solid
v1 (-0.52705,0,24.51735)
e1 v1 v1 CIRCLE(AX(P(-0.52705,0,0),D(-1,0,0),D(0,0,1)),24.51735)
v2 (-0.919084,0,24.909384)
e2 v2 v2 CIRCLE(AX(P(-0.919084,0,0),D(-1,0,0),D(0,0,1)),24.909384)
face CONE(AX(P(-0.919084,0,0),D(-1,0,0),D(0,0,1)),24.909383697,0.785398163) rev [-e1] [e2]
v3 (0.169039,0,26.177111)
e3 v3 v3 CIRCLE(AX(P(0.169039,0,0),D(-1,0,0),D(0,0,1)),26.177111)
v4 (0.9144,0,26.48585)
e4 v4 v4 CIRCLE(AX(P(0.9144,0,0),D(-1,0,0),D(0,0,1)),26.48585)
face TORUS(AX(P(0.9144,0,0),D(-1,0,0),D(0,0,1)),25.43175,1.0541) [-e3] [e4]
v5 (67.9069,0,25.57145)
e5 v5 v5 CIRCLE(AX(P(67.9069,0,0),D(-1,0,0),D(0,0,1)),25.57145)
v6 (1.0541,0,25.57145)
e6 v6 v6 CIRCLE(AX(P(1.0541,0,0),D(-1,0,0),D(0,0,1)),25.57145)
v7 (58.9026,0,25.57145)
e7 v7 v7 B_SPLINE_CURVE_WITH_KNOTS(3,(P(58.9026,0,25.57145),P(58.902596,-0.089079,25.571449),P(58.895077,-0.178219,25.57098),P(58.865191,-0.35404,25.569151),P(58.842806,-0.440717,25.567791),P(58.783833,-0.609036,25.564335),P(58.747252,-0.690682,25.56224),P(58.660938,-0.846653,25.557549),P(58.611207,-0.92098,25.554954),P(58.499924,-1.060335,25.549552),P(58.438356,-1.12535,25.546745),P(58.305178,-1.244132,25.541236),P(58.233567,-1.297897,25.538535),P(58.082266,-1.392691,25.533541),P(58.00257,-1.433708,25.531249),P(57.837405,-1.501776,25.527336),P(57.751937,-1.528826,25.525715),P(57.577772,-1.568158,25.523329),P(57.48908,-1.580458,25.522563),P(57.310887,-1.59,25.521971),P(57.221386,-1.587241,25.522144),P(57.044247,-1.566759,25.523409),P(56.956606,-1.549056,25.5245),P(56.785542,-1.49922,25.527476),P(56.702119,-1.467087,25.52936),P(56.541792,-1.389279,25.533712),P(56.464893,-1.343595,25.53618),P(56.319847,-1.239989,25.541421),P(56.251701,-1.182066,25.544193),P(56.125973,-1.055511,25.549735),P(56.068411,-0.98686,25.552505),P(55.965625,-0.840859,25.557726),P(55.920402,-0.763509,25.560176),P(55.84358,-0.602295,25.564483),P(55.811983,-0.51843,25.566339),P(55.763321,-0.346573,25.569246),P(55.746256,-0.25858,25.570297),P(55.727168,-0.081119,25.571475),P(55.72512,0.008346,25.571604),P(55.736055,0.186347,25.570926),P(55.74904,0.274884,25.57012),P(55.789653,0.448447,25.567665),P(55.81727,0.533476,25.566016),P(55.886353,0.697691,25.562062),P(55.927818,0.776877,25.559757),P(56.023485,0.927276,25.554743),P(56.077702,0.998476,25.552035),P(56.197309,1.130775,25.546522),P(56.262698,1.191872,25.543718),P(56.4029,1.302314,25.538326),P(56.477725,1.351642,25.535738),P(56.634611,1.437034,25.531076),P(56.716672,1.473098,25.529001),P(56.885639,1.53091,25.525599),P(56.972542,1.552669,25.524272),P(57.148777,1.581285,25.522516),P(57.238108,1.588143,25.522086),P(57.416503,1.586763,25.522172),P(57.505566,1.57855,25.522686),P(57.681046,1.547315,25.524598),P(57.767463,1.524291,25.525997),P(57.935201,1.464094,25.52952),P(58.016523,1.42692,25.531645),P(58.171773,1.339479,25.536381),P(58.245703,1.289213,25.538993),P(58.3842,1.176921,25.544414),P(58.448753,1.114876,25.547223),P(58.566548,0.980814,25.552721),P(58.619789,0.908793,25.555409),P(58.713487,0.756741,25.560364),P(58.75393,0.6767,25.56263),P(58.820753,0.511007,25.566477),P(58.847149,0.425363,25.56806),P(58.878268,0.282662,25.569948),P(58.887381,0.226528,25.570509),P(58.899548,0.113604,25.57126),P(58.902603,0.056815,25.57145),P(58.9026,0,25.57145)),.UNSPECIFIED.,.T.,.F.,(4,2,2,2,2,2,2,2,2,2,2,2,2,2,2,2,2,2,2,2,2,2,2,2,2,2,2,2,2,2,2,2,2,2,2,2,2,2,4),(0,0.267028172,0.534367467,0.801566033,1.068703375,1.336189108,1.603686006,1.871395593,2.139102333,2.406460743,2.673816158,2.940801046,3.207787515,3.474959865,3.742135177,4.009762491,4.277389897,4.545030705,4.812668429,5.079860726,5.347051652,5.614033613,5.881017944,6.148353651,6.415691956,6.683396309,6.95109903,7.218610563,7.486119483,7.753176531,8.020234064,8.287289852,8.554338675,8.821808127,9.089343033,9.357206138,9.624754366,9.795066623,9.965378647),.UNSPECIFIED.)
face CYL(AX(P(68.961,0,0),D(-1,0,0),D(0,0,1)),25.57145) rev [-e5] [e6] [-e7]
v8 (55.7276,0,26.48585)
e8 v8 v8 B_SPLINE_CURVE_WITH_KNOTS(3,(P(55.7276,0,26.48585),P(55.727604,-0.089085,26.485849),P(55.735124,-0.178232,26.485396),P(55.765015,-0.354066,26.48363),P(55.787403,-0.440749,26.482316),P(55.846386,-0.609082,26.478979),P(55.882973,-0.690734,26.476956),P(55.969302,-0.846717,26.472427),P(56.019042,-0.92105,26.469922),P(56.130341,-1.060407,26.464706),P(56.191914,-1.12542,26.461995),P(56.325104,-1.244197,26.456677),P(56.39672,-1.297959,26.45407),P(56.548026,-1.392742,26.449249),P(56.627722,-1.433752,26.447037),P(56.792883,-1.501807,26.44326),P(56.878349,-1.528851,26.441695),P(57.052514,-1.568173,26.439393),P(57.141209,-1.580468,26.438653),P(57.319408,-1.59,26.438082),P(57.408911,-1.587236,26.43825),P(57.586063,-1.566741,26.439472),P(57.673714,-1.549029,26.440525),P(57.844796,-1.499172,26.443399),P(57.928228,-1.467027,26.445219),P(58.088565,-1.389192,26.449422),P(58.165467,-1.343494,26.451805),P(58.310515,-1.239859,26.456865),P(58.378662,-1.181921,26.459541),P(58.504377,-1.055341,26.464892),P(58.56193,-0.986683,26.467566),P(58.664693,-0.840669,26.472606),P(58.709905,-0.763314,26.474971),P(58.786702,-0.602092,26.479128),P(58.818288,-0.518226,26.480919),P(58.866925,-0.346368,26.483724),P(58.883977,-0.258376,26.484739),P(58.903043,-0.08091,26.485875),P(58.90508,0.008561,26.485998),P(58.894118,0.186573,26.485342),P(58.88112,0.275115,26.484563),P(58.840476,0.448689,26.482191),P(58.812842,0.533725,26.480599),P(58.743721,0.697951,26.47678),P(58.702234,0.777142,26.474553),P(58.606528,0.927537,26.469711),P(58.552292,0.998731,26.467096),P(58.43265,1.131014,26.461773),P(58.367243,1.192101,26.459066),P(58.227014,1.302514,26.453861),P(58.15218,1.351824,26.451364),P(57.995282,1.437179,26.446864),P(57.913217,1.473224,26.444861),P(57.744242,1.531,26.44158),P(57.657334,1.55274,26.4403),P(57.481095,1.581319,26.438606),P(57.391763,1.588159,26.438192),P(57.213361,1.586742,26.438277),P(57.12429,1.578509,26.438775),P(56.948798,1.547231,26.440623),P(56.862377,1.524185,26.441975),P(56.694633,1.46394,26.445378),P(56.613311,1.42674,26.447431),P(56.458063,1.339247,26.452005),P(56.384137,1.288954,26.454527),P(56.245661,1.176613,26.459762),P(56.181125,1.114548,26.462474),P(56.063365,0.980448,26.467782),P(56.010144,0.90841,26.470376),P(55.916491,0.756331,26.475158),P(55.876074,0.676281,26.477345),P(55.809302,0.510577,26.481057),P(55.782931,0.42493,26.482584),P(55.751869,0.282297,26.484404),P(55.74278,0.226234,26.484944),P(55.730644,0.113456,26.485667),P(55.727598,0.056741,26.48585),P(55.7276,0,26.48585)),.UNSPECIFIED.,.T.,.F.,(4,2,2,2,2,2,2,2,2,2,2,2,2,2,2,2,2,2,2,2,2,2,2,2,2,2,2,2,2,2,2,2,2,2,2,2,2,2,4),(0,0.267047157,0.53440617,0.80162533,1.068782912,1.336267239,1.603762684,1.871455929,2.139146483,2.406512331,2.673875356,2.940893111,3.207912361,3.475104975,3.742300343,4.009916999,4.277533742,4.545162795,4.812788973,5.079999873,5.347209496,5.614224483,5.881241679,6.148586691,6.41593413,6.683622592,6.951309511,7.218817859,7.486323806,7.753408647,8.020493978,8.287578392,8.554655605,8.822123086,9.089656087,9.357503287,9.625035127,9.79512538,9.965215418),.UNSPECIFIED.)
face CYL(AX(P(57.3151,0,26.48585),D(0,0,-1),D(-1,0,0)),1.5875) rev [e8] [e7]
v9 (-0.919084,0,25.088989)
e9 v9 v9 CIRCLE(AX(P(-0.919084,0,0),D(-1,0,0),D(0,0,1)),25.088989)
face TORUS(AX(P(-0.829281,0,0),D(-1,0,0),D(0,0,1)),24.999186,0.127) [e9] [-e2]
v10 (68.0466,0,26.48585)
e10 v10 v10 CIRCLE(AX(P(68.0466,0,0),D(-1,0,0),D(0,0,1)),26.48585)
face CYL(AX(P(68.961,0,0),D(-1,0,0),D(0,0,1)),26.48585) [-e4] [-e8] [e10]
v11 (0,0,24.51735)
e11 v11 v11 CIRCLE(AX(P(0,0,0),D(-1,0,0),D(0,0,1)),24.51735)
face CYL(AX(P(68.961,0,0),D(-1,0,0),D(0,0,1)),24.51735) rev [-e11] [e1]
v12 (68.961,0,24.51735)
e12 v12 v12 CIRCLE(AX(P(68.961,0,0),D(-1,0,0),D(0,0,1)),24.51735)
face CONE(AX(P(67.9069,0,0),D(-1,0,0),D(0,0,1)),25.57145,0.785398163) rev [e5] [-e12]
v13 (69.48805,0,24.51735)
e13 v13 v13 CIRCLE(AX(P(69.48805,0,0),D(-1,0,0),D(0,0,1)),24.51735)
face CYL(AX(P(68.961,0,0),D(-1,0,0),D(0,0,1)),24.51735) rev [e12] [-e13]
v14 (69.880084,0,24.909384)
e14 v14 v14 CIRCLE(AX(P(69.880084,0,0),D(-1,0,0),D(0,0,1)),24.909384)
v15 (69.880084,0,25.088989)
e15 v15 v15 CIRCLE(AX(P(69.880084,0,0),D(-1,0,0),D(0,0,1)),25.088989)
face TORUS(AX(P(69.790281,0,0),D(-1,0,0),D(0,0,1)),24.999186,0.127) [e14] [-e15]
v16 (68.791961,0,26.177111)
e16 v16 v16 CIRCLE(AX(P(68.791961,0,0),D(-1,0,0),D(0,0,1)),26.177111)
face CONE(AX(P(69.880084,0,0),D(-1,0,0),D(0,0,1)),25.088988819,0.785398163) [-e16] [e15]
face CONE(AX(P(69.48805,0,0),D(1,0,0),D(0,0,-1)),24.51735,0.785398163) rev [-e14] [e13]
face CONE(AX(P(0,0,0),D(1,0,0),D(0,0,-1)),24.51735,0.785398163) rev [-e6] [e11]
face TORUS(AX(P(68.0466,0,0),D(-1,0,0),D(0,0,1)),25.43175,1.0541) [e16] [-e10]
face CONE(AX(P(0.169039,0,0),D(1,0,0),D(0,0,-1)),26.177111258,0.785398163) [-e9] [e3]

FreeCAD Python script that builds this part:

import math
import FreeCAD as App
import Part
import Sketcher
from FreeCAD import Vector
Q = App.Units.Quantity

doc = App.newDocument("Part")
body = doc.addObject("PartDesign::Body", "Body")

sketch1 = body.newObject("Sketcher::SketchObject", "Sketch")
sketch1.AttachmentSupport = (doc.getObject("XY_Plane"), [""])
sketch1.MapMode = "FlatFace"
sketch1.addGeometry(Part.LineSegment(Vector(-0.92, 24.91, 0), Vector(-0.53, 24.52, 0)), False)
sketch1.addGeometry(Part.LineSegment(Vector(-0.53, 24.52, 0), Vector(0, 24.52, 0)), False)
sketch1.addGeometry(Part.LineSegment(Vector(0, 24.52, 0), Vector(1.05, 25.57, 0)), False)
sketch1.addGeometry(Part.LineSegment(Vector(1.05, 25.57, 0), Vector(67.91, 25.57, 0)), False)
sketch1.addGeometry(Part.LineSegment(Vector(67.91, 25.57, 0), Vector(68.96, 24.52, 0)), False)
sketch1.addGeometry(Part.LineSegment(Vector(68.96, 24.52, 0), Vector(69.49, 24.52, 0)), False)
sketch1.addGeometry(Part.LineSegment(Vector(69.49, 24.52, 0), Vector(69.88, 24.91, 0)), False)
sketch1.addGeometry(Part.ArcOfCircle(Part.Circle(Vector(69.79, 25, 0), Vector(0, 0, 1), 0.13), math.radians(-45), math.radians(45)), False)
sketch1.addGeometry(Part.LineSegment(Vector(69.88, 25.09, 0), Vector(68.79, 26.18, 0)), False)
sketch1.addGeometry(Part.ArcOfCircle(Part.Circle(Vector(68.05, 25.43, 0), Vector(0, 0, 1), 1.05), math.radians(45), math.radians(90)), False)
sketch1.addGeometry(Part.LineSegment(Vector(68.05, 26.49, 0), Vector(0.91, 26.49, 0)), False)
sketch1.addGeometry(Part.ArcOfCircle(Part.Circle(Vector(0.91, 25.43, 0), Vector(0, 0, 1), 1.05), math.radians(90), math.radians(135)), False)
sketch1.addGeometry(Part.LineSegment(Vector(0.17, 26.18, 0), Vector(-0.92, 25.09, 0)), False)
sketch1.addGeometry(Part.ArcOfCircle(Part.Circle(Vector(-0.83, 25, 0), Vector(0, 0, 1), 0.13), math.radians(135), math.radians(225)), False)
sketch1.addConstraint(Sketcher.Constraint("Coincident", 0, 2, 1, 1))
sketch1.addConstraint(Sketcher.Constraint("Coincident", 1, 2, 2, 1))
sketch1.addConstraint(Sketcher.Constraint("Coincident", 2, 2, 3, 1))
sketch1.addConstraint(Sketcher.Constraint("Coincident", 3, 2, 4, 1))
sketch1.addConstraint(Sketcher.Constraint("Coincident", 4, 2, 5, 1))
sketch1.addConstraint(Sketcher.Constraint("Coincident", 5, 2, 6, 1))
sketch1.addConstraint(Sketcher.Constraint("Tangent", 6, 2, 7, 1))
sketch1.addConstraint(Sketcher.Constraint("Tangent", 7, 2, 8, 1))
sketch1.addConstraint(Sketcher.Constraint("Tangent", 8, 2, 9, 1))
sketch1.addConstraint(Sketcher.Constraint("Tangent", 9, 2, 10, 1))
sketch1.addConstraint(Sketcher.Constraint("Tangent", 10, 2, 11, 1))
sketch1.addConstraint(Sketcher.Constraint("Tangent", 11, 2, 12, 1))
sketch1.addConstraint(Sketcher.Constraint("Tangent", 12, 2, 13, 1))
sketch1.addConstraint(Sketcher.Constraint("Tangent", 13, 2, 0, 1))
sketch1.addConstraint(Sketcher.Constraint("Horizontal", 1))
sketch1.addConstraint(Sketcher.Constraint("Horizontal", 3))
sketch1.addConstraint(Sketcher.Constraint("Horizontal", 5))
sketch1.addConstraint(Sketcher.Constraint("Horizontal", 10))
sketch1.addConstraint(Sketcher.Constraint("Equal", 9, 11))
sketch1.addConstraint(Sketcher.Constraint("Equal", 7, 13))
sketch1.addConstraint(Sketcher.Constraint("PointOnObject", 1, 2, -2))
sketch1.addConstraint(Sketcher.Constraint("Perpendicular", 0, 2))
sketch1.addConstraint(Sketcher.Constraint("Perpendicular", 2, 4))
sketch1.addConstraint(Sketcher.Constraint("Perpendicular", 4, 6))
sketch1.addConstraint(Sketcher.Constraint("Perpendicular", 6, 8))
sketch1.addConstraint(Sketcher.Constraint("Perpendicular", 8, 12))
sketch1.addConstraint(Sketcher.Constraint("Horizontal", 7, 3, 13, 3))
sketch1.addConstraint(Sketcher.Constraint("Horizontal", 1, 2, 4, 2))
sketch1.addConstraint(Sketcher.Constraint("Horizontal", 8, 2, 11, 2))
sketch1.addConstraint(Sketcher.Constraint("Equal", 1, 5))
sketch1.addConstraint(Sketcher.Constraint("Radius", 7, Q("0.005 in")))
sketch1.addConstraint(Sketcher.Constraint("Radius", 9, Q("0.0415 in")))
sketch1.addConstraint(Sketcher.Constraint("DistanceX", 3, 1, 3, 2, Q("2.632 in")))
sketch1.addConstraint(Sketcher.Constraint("DistanceX", 10, 2, 10, 1, Q("2.643 in")))
sketch1.addConstraint(Sketcher.Constraint("DistanceX", -1, 1, 9, 3, Q("2.679 in")))
sketch1.addConstraint(Sketcher.Constraint("DistanceY", 0, 2, 11, 3, Q("0.036 in")))
sketch1.addConstraint(Sketcher.Constraint("DistanceX", 1, 1, 1, 2, 0.52705))
sketch1.addConstraint(Sketcher.Constraint("DistanceY", -1, 1, 9, 3, 25.43175))
revolution = body.newObject("PartDesign::Revolution", "Revolution")
revolution.Profile = sketch1
revolution.ReferenceAxis = (sketch1, ["H_Axis"])
revolution.Angle = 360

sketch2 = body.newObject("Sketcher::SketchObject", "Sketch001")
sketch2.AttachmentSupport = (doc.getObject("XY_Plane"), [""])
sketch2.MapMode = "FlatFace"
sketch2.addGeometry(Part.Circle(Vector(57.3, 0, 0), Vector(0, 0, 1), 1.6), False)
sketch2.addConstraint(Sketcher.Constraint("PointOnObject", 0, 3, -1))
sketch2.addConstraint(Sketcher.Constraint("Diameter", 0, Q("0.125 in")))
sketch2.addConstraint(Sketcher.Constraint("DistanceX", -1, 1, 0, 3, Q("2.2565 in")))
pocket1 = body.newObject("PartDesign::Pocket", "Pocket")
pocket1.Profile = sketch2
pocket1.Length = 26.48585
pocket1.Reversed = True

doc.recompute()
